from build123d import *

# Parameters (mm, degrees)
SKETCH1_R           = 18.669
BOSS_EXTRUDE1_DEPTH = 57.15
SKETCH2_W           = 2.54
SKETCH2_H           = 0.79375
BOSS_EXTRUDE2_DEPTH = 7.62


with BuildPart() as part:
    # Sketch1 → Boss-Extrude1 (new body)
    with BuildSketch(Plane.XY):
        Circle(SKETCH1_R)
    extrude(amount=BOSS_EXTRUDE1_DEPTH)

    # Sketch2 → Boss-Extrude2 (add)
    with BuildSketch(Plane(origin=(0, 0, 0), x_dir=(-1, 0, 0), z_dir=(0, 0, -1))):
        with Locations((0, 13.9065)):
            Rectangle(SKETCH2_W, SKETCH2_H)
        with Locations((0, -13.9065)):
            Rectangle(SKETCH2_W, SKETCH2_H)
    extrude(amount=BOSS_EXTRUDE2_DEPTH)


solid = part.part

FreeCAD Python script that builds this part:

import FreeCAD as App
import Part
import Sketcher
Q = App.Units.Quantity


def add_polygon(sketch, points):
    """Adds a closed chain of lines whose ends are joined by coincident constraints."""
    first, n = sketch.GeometryCount, len(points)
    for a, b in zip(points, points[1:] + points[:1]):
        sketch.addGeometry(Part.LineSegment(App.Vector(*a, 0), App.Vector(*b, 0)), False)
    for i in range(n):
        sketch.addConstraint(Sketcher.Constraint("Coincident", first + i, 2, first + (i + 1) % n, 1))

doc = App.newDocument("Part")
body = doc.addObject("PartDesign::Body", "Body")

sketch1 = body.newObject("Sketcher::SketchObject", "Sketch")
sketch1.AttachmentSupport = (doc.getObject("XY_Plane"), [""])
sketch1.MapMode = "FlatFace"
sketch1.addGeometry(Part.Circle(App.Vector(0, 0, 0), App.Vector(0, 0, 1), 19), False)
sketch1.addConstraint(Sketcher.Constraint("Coincident", 0, 3, -1, 1))
sketch1.addConstraint(Sketcher.Constraint("Diameter", 0, Q("1.47 in")))
pad1 = body.newObject("PartDesign::Pad", "Pad")
pad1.Profile = sketch1
pad1.Length = Q("2.25 in")

sketch2 = body.newObject("Sketcher::SketchObject", "Sketch001")
sketch2.AttachmentSupport = (doc.getObject("XY_Plane"), [""])
sketch2.MapMode = "FlatFace"
add_polygon(sketch2, [(1.3, 14.3), (1.3, 13.5), (-1.3, 13.5), (-1.3, 14.3)])
add_polygon(sketch2, [(1.3, -13.5), (1.3, -14.3), (-1.3, -14.3), (-1.3, -13.5)])
sketch2.addConstraint(Sketcher.Constraint("Vertical", 0))
sketch2.addConstraint(Sketcher.Constraint("Horizontal", 1))
sketch2.addConstraint(Sketcher.Constraint("Vertical", 2))
sketch2.addConstraint(Sketcher.Constraint("Horizontal", 3))
sketch2.addConstraint(Sketcher.Constraint("Vertical", 4))
sketch2.addConstraint(Sketcher.Constraint("Horizontal", 5))
sketch2.addConstraint(Sketcher.Constraint("Vertical", 6))
sketch2.addConstraint(Sketcher.Constraint("Horizontal", 7))
sketch2.addConstraint(Sketcher.Constraint("Symmetric", 2, 2, 4, 2, -1, 1))
sketch2.addConstraint(Sketcher.Constraint("Symmetric", 0, 2, 6, 2, -1, 1))
sketch2.addConstraint(Sketcher.Constraint("Vertical", 3, 2, 4, 2))
sketch2.addConstraint(Sketcher.Constraint("DistanceX", 1, 2, 1, 1, Q("0.1 in")))
sketch2.addConstraint(Sketcher.Constraint("DistanceY", 0, 2, 0, 1, Q("0.03125 in")))
sketch2.addConstraint(Sketcher.Constraint("DistanceY", 4, 2, 0, 2, Q("1.095 in")))
pad2 = body.newObject("PartDesign::Pad", "Pad001")
pad2.Profile = sketch2
pad2.Length = Q("0.3 in")
pad2.Reversed = True

doc.recompute()
